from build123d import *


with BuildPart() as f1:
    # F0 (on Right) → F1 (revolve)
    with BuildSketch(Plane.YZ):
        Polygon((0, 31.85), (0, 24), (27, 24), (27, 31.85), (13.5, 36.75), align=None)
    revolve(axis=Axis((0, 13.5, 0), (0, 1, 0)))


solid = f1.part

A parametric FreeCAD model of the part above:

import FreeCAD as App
import Part
import Sketcher
from FreeCAD import Vector

doc = App.newDocument("Part")
body = doc.addObject("PartDesign::Body", "Body")

# Sketch on YZ plane
sketch1 = body.newObject("Sketcher::SketchObject", "Sketch")
sketch1.AttachmentSupport = (doc.getObject("YZ_Plane"), [""])
sketch1.MapMode = "FlatFace"
sketch1.addGeometry(Part.LineSegment(Vector(0, 32, 0), Vector(0, 24, 0)), False)
sketch1.addGeometry(Part.LineSegment(Vector(0, 24, 0), Vector(27, 24, 0)), False)
sketch1.addGeometry(Part.LineSegment(Vector(27, 24, 0), Vector(27, 32, 0)), False)
sketch1.addGeometry(Part.LineSegment(Vector(27, 32, 0), Vector(14, 37, 0)), False)
sketch1.addGeometry(Part.LineSegment(Vector(14, 37, 0), Vector(0, 32, 0)), False)
sketch1.addConstraint(Sketcher.Constraint("Coincident", 0, 2, 1, 1))
sketch1.addConstraint(Sketcher.Constraint("Coincident", 1, 2, 2, 1))
sketch1.addConstraint(Sketcher.Constraint("Coincident", 2, 2, 3, 1))
sketch1.addConstraint(Sketcher.Constraint("Coincident", 3, 2, 4, 1))
sketch1.addConstraint(Sketcher.Constraint("Coincident", 4, 2, 0, 1))
sketch1.addConstraint(Sketcher.Constraint("Vertical", 0))
sketch1.addConstraint(Sketcher.Constraint("Horizontal", 1))
sketch1.addConstraint(Sketcher.Constraint("Vertical", 2))
sketch1.addConstraint(Sketcher.Constraint("PointOnObject", 0, 2, -2))
sketch1.addConstraint(Sketcher.Constraint("Horizontal", 2, 2, 4, 2))
sketch1.addConstraint(Sketcher.Constraint("Equal", 3, 4))
sketch1.addConstraint(Sketcher.Constraint("DistanceX", 1, 1, 1, 2, 27.0))
sketch1.addConstraint(Sketcher.Constraint("DistanceY", -1, 1, 0, 2, 24.0))
sketch1.addConstraint(Sketcher.Constraint("DistanceY", 0, 2, 0, 1, 7.85))
sketch1.addConstraint(Sketcher.Constraint("DistanceY", 2, 2, 3, 2, 4.9))
revolution = body.newObject("PartDesign::Revolution", "Revolution")
revolution.Profile = sketch1
revolution.ReferenceAxis = (sketch1, ["H_Axis"])
revolution.Angle = 360

doc.recompute()
